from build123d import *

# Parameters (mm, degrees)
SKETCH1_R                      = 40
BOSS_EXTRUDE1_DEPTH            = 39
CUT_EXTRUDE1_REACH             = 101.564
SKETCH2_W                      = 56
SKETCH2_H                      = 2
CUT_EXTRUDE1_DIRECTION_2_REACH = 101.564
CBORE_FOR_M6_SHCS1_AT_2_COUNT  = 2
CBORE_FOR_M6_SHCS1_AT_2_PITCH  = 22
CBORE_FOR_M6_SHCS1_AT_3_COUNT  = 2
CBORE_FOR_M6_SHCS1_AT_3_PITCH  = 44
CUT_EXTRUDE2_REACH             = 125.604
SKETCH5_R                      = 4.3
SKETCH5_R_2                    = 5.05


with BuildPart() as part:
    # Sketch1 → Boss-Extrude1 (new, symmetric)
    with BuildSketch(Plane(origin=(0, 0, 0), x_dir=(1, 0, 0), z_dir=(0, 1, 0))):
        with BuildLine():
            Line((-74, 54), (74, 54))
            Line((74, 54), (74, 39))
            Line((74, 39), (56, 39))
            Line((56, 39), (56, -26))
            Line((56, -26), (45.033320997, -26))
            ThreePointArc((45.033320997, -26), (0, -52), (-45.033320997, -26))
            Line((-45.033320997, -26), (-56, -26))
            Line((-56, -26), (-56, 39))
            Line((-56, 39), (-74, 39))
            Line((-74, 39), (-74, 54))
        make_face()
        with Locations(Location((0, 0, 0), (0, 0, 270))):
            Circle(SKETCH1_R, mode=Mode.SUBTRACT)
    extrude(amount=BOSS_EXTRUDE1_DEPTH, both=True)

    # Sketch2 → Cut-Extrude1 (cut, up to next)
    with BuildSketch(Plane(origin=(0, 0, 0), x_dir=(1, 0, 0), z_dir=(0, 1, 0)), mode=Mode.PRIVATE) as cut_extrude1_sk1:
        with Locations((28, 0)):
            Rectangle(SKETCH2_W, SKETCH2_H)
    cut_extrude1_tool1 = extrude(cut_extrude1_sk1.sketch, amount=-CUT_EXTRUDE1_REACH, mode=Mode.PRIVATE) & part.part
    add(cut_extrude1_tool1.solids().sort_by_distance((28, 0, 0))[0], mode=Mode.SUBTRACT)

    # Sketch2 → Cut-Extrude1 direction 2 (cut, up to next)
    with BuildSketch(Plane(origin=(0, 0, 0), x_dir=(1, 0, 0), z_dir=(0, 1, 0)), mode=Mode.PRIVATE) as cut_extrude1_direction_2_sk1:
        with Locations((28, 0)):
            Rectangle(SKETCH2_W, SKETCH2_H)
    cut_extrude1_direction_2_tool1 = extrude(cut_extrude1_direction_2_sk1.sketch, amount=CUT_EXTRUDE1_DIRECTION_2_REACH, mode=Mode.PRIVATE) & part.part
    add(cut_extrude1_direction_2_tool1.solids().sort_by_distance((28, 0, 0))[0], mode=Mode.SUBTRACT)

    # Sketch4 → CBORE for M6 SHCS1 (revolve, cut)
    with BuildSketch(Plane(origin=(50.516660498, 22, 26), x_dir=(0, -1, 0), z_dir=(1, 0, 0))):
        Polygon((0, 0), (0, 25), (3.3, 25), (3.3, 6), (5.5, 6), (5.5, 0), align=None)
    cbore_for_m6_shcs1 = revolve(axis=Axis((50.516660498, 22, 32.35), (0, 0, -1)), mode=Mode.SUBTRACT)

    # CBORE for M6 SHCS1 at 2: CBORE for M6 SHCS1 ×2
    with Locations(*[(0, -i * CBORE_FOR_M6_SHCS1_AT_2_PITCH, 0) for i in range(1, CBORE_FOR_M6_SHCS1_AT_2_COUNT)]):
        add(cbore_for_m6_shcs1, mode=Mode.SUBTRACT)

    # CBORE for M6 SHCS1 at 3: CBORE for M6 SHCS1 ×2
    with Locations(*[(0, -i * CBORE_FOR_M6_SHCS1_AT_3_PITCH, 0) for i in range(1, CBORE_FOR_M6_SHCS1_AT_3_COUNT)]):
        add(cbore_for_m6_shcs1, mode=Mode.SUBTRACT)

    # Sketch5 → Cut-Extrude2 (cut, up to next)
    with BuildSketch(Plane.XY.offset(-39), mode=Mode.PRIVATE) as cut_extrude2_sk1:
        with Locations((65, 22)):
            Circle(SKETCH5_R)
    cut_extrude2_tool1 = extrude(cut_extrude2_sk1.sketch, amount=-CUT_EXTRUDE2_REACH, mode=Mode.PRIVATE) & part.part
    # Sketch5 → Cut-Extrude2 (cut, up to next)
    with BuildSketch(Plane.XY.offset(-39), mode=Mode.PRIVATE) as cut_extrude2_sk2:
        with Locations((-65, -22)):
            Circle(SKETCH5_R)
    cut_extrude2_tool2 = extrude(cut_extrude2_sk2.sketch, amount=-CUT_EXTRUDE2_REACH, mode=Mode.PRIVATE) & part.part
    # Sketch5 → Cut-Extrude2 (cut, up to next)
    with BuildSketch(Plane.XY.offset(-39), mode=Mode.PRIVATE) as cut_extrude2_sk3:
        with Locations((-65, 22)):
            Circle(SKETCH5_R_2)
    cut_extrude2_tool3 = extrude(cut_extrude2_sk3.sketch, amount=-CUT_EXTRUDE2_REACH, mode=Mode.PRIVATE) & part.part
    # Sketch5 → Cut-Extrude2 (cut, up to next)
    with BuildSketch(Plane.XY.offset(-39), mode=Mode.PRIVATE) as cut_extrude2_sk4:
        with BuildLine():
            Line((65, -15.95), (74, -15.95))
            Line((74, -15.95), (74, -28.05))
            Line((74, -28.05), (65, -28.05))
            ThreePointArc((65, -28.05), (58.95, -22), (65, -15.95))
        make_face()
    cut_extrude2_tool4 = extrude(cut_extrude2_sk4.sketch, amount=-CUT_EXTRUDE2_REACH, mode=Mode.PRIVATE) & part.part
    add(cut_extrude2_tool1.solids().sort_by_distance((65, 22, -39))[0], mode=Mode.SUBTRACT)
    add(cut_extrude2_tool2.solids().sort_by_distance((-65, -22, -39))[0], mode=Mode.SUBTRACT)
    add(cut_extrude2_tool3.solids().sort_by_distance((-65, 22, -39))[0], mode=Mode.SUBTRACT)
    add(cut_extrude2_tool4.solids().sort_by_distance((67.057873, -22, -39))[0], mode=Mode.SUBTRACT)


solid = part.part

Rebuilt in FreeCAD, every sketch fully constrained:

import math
import FreeCAD as App
import Part
import Sketcher

doc = App.newDocument("Part")
body = doc.addObject("PartDesign::Body", "Body")

# Sketch on XZ plane
sketch1 = body.newObject("Sketcher::SketchObject", "Sketch")
sketch1.AttachmentSupport = (doc.getObject("XZ_Plane"), [""])
sketch1.MapMode = "FlatFace"
sketch1.addGeometry(Part.LineSegment(App.Vector(74, -54, 0), App.Vector(-74, -54, 0)), False)
sketch1.addGeometry(Part.LineSegment(App.Vector(-74, -54, 0), App.Vector(-74, -39, 0)), False)
sketch1.addGeometry(Part.LineSegment(App.Vector(-74, -39, 0), App.Vector(-56, -39, 0)), False)
sketch1.addGeometry(Part.LineSegment(App.Vector(-56, -39, 0), App.Vector(-56, 26, 0)), False)
sketch1.addGeometry(Part.LineSegment(App.Vector(-56, 26, 0), App.Vector(-45.033321, 26, 0)), False)
sketch1.addGeometry(Part.ArcOfCircle(Part.Circle(App.Vector(0, 0, 0), App.Vector(0, 0, 1), 52), math.radians(30), math.radians(150)), False)
sketch1.addGeometry(Part.LineSegment(App.Vector(45.033321, 26, 0), App.Vector(56, 26, 0)), False)
sketch1.addGeometry(Part.LineSegment(App.Vector(56, 26, 0), App.Vector(56, -39, 0)), False)
sketch1.addGeometry(Part.LineSegment(App.Vector(56, -39, 0), App.Vector(74, -39, 0)), False)
sketch1.addGeometry(Part.LineSegment(App.Vector(74, -39, 0), App.Vector(74, -54, 0)), False)
sketch1.addGeometry(Part.Circle(App.Vector(0, 0, 0), App.Vector(0, 0, 1), 40), False)
sketch1.addConstraint(Sketcher.Constraint("Coincident", 0, 2, 1, 1))
sketch1.addConstraint(Sketcher.Constraint("Coincident", 1, 2, 2, 1))
sketch1.addConstraint(Sketcher.Constraint("Coincident", 2, 2, 3, 1))
sketch1.addConstraint(Sketcher.Constraint("Coincident", 3, 2, 4, 1))
sketch1.addConstraint(Sketcher.Constraint("Coincident", 4, 2, 5, 2))
sketch1.addConstraint(Sketcher.Constraint("Coincident", 5, 1, 6, 1))
sketch1.addConstraint(Sketcher.Constraint("Coincident", 6, 2, 7, 1))
sketch1.addConstraint(Sketcher.Constraint("Coincident", 7, 2, 8, 1))
sketch1.addConstraint(Sketcher.Constraint("Coincident", 8, 2, 9, 1))
sketch1.addConstraint(Sketcher.Constraint("Coincident", 9, 2, 0, 1))
sketch1.addConstraint(Sketcher.Constraint("Horizontal", 0))
sketch1.addConstraint(Sketcher.Constraint("Vertical", 1))
sketch1.addConstraint(Sketcher.Constraint("Horizontal", 2))
sketch1.addConstraint(Sketcher.Constraint("Vertical", 3))
sketch1.addConstraint(Sketcher.Constraint("Horizontal", 4))
sketch1.addConstraint(Sketcher.Constraint("Horizontal", 6))
sketch1.addConstraint(Sketcher.Constraint("Vertical", 7))
sketch1.addConstraint(Sketcher.Constraint("Horizontal", 8))
sketch1.addConstraint(Sketcher.Constraint("Vertical", 9))
sketch1.addConstraint(Sketcher.Constraint("Coincident", 5, 3, -1, 1))
sketch1.addConstraint(Sketcher.Constraint("Coincident", 10, 3, -1, 1))
sketch1.addConstraint(Sketcher.Constraint("Symmetric", 3, 2, 6, 2, -2))
sketch1.addConstraint(Sketcher.Constraint("Symmetric", 1, 2, 8, 2, -2))
sketch1.addConstraint(Sketcher.Constraint("Diameter", 10, 80.0))
sketch1.addConstraint(Sketcher.Constraint("Radius", 5, 52.0))
sketch1.addConstraint(Sketcher.Constraint("DistanceX", 0, 2, 0, 1, 148.0))
sketch1.addConstraint(Sketcher.Constraint("DistanceX", 2, 1, 2, 2, 18.0))
sketch1.addConstraint(Sketcher.Constraint("DistanceY", 1, 1, 1, 2, 15.0))
sketch1.addConstraint(Sketcher.Constraint("DistanceY", 3, 1, 3, 2, 65.0))
sketch1.addConstraint(Sketcher.Constraint("DistanceY", 0, 2, -1, 1, 54.0))
pad1 = body.newObject("PartDesign::Pad", "Pad")
pad1.Profile = sketch1
pad1.Length = 78
pad1.Midplane = True

# Sketch on XZ plane
sketch2 = body.newObject("Sketcher::SketchObject", "Sketch001")
sketch2.AttachmentSupport = (doc.getObject("XZ_Plane"), [""])
sketch2.MapMode = "FlatFace"
sketch2.addGeometry(Part.LineSegment(App.Vector(0, -1, 0), App.Vector(0, 1, 0)), False)
sketch2.addGeometry(Part.LineSegment(App.Vector(0, 1, 0), App.Vector(56, 1, 0)), False)
sketch2.addGeometry(Part.LineSegment(App.Vector(56, 1, 0), App.Vector(56, -1, 0)), False)
sketch2.addGeometry(Part.LineSegment(App.Vector(56, -1, 0), App.Vector(0, -1, 0)), False)
sketch2.addConstraint(Sketcher.Constraint("Coincident", 0, 2, 1, 1))
sketch2.addConstraint(Sketcher.Constraint("Coincident", 1, 2, 2, 1))
sketch2.addConstraint(Sketcher.Constraint("Coincident", 2, 2, 3, 1))
sketch2.addConstraint(Sketcher.Constraint("Coincident", 3, 2, 0, 1))
sketch2.addConstraint(Sketcher.Constraint("Vertical", 0))
sketch2.addConstraint(Sketcher.Constraint("Horizontal", 1))
sketch2.addConstraint(Sketcher.Constraint("Vertical", 2))
sketch2.addConstraint(Sketcher.Constraint("Horizontal", 3))
sketch2.addConstraint(Sketcher.Constraint("Symmetric", 0, 2, 3, 2, -1, 1))
sketch2.addConstraint(Sketcher.Constraint("DistanceX", 1, 1, 1, 2, 56.0))
sketch2.addConstraint(Sketcher.Constraint("DistanceY", 0, 1, 0, 2, 2.0))
pocket1 = body.newObject("PartDesign::Pocket", "Pocket")
pocket1.Profile = sketch2
pocket1.Length = 39
pocket1.Reversed = True

# Sketch on XZ plane
sketch3 = body.newObject("Sketcher::SketchObject", "Sketch002")
sketch3.AttachmentSupport = (doc.getObject("XZ_Plane"), [""])
sketch3.MapMode = "FlatFace"
sketch3.addGeometry(Part.LineSegment(App.Vector(0, -1, 0), App.Vector(0, 1, 0)), False)
sketch3.addGeometry(Part.LineSegment(App.Vector(0, 1, 0), App.Vector(56, 1, 0)), False)
sketch3.addGeometry(Part.LineSegment(App.Vector(56, 1, 0), App.Vector(56, -1, 0)), False)
sketch3.addGeometry(Part.LineSegment(App.Vector(56, -1, 0), App.Vector(0, -1, 0)), False)
sketch3.addConstraint(Sketcher.Constraint("Coincident", 0, 2, 1, 1))
sketch3.addConstraint(Sketcher.Constraint("Coincident", 1, 2, 2, 1))
sketch3.addConstraint(Sketcher.Constraint("Coincident", 2, 2, 3, 1))
sketch3.addConstraint(Sketcher.Constraint("Coincident", 3, 2, 0, 1))
sketch3.addConstraint(Sketcher.Constraint("Vertical", 0))
sketch3.addConstraint(Sketcher.Constraint("Horizontal", 1))
sketch3.addConstraint(Sketcher.Constraint("Vertical", 2))
sketch3.addConstraint(Sketcher.Constraint("Horizontal", 3))
sketch3.addConstraint(Sketcher.Constraint("Symmetric", 0, 2, 3, 2, -1, 1))
sketch3.addConstraint(Sketcher.Constraint("DistanceX", 1, 1, 1, 2, 56.0))
sketch3.addConstraint(Sketcher.Constraint("DistanceY", 0, 1, 0, 2, 2.0))
pocket2 = body.newObject("PartDesign::Pocket", "Pocket001")
pocket2.Profile = sketch3
pocket2.Length = 39

# Sketch on YZ plane
sketch4 = body.newObject("Sketcher::SketchObject", "Sketch003")
sketch4.AttachmentSupport = (doc.getObject("YZ_Plane"), [""])
sketch4.MapMode = "FlatFace"
sketch4.AttachmentOffset = App.Placement(App.Vector(0, 0, 50.51666), App.Rotation())
sketch4.addGeometry(Part.LineSegment(App.Vector(22, 1, 0), App.Vector(22, 26, 0)), False)
sketch4.addGeometry(Part.LineSegment(App.Vector(22, 26, 0), App.Vector(16.5, 26, 0)), False)
sketch4.addGeometry(Part.LineSegment(App.Vector(16.5, 26, 0), App.Vector(16.5, 20, 0)), False)
sketch4.addGeometry(Part.LineSegment(App.Vector(16.5, 20, 0), App.Vector(18.7, 20, 0)), False)
sketch4.addGeometry(Part.LineSegment(App.Vector(18.7, 20, 0), App.Vector(18.7, 1, 0)), False)
sketch4.addGeometry(Part.LineSegment(App.Vector(18.7, 1, 0), App.Vector(22, 1, 0)), False)
sketch4.addGeometry(Part.LineSegment(App.Vector(22, 26, 0), App.Vector(22, 1, 0)), True)  # axis
sketch4.addConstraint(Sketcher.Constraint("Coincident", 0, 2, 1, 1))
sketch4.addConstraint(Sketcher.Constraint("Coincident", 1, 2, 2, 1))
sketch4.addConstraint(Sketcher.Constraint("Coincident", 2, 2, 3, 1))
sketch4.addConstraint(Sketcher.Constraint("Coincident", 3, 2, 4, 1))
sketch4.addConstraint(Sketcher.Constraint("Coincident", 4, 2, 5, 1))
sketch4.addConstraint(Sketcher.Constraint("Coincident", 5, 2, 0, 1))
sketch4.addConstraint(Sketcher.Constraint("Vertical", 0))
sketch4.addConstraint(Sketcher.Constraint("Horizontal", 1))
sketch4.addConstraint(Sketcher.Constraint("Vertical", 2))
sketch4.addConstraint(Sketcher.Constraint("Horizontal", 3))
sketch4.addConstraint(Sketcher.Constraint("Vertical", 4))
sketch4.addConstraint(Sketcher.Constraint("Horizontal", 5))
sketch4.addConstraint(Sketcher.Constraint("Vertical", 6))
sketch4.addConstraint(Sketcher.Constraint("Coincident", 6, 1, 0, 2))
sketch4.addConstraint(Sketcher.Constraint("Horizontal", 4, 2, 6, 2))
sketch4.addConstraint(Sketcher.Constraint("DistanceY", 0, 1, 0, 2, 25.0))
sketch4.addConstraint(Sketcher.Constraint("DistanceY", 2, 2, 2, 1, 6.0))
sketch4.addConstraint(Sketcher.Constraint("DistanceX", 1, 2, 1, 1, 5.5))
sketch4.addConstraint(Sketcher.Constraint("DistanceX", 3, 1, 3, 2, 2.2))
sketch4.addConstraint(Sketcher.Constraint("DistanceX", -1, 1, 0, 2, 22.0))
sketch4.addConstraint(Sketcher.Constraint("DistanceY", -1, 1, 0, 2, 26.0))
groove = body.newObject("PartDesign::Groove", "Groove")
groove.Profile = sketch4
groove.ReferenceAxis = (sketch4, ["Axis0"])
groove.Angle = 360
doc.recompute()

linearpattern = body.newObject("PartDesign::LinearPattern", "LinearPattern")
linearpattern.Originals = [groove]
linearpattern.Direction = (doc.getObject("Y_Axis"), [""])
linearpattern.Mode = "offset"
linearpattern.Offset = 22
linearpattern.Occurrences = 2
linearpattern.Reversed = True
body.Tip = linearpattern
doc.recompute()

linearpattern2 = body.newObject("PartDesign::LinearPattern", "LinearPattern001")
linearpattern2.Originals = [groove]
linearpattern2.Direction = (doc.getObject("Y_Axis"), [""])
linearpattern2.Mode = "offset"
linearpattern2.Offset = 44
linearpattern2.Occurrences = 2
linearpattern2.Reversed = True
body.Tip = linearpattern2

# Sketch on XY plane
sketch5 = body.newObject("Sketcher::SketchObject", "Sketch004")
sketch5.AttachmentSupport = (doc.getObject("XY_Plane"), [""])
sketch5.MapMode = "FlatFace"
sketch5.AttachmentOffset = App.Placement(App.Vector(0, 0, -39), App.Rotation())
sketch5.addGeometry(Part.Circle(App.Vector(65, 22, 0), App.Vector(0, 0, 1), 4.3), False)
sketch5.addConstraint(Sketcher.Constraint("Diameter", 0, 8.6))
sketch5.addConstraint(Sketcher.Constraint("DistanceX", -1, 1, 0, 3, 65.0))
sketch5.addConstraint(Sketcher.Constraint("DistanceY", -1, 1, 0, 3, 22.0))
pocket3 = body.newObject("PartDesign::Pocket", "Pocket002")
pocket3.Profile = sketch5
pocket3.Type = "UpToFirst"

# Sketch on XY plane
sketch6 = body.newObject("Sketcher::SketchObject", "Sketch005")
sketch6.AttachmentSupport = (doc.getObject("XY_Plane"), [""])
sketch6.MapMode = "FlatFace"
sketch6.AttachmentOffset = App.Placement(App.Vector(0, 0, -39), App.Rotation())
sketch6.addGeometry(Part.Circle(App.Vector(-65, -22, 0), App.Vector(0, 0, 1), 4.3), False)
sketch6.addConstraint(Sketcher.Constraint("Diameter", 0, 8.6))
sketch6.addConstraint(Sketcher.Constraint("DistanceX", 0, 3, -1, 1, 65.0))
sketch6.addConstraint(Sketcher.Constraint("DistanceY", 0, 3, -1, 1, 22.0))
pocket4 = body.newObject("PartDesign::Pocket", "Pocket003")
pocket4.Profile = sketch6
pocket4.Type = "UpToFirst"

# Sketch on XY plane
sketch7 = body.newObject("Sketcher::SketchObject", "Sketch006")
sketch7.AttachmentSupport = (doc.getObject("XY_Plane"), [""])
sketch7.MapMode = "FlatFace"
sketch7.AttachmentOffset = App.Placement(App.Vector(0, 0, -39), App.Rotation())
sketch7.addGeometry(Part.Circle(App.Vector(-65, 22, 0), App.Vector(0, 0, 1), 5.05), False)
sketch7.addConstraint(Sketcher.Constraint("Diameter", 0, 10.1))
sketch7.addConstraint(Sketcher.Constraint("DistanceX", 0, 3, -1, 1, 65.0))
sketch7.addConstraint(Sketcher.Constraint("DistanceY", -1, 1, 0, 3, 22.0))
pocket5 = body.newObject("PartDesign::Pocket", "Pocket004")
pocket5.Profile = sketch7
pocket5.Type = "UpToFirst"

# Sketch on XY plane
sketch8 = body.newObject("Sketcher::SketchObject", "Sketch007")
sketch8.AttachmentSupport = (doc.getObject("XY_Plane"), [""])
sketch8.MapMode = "FlatFace"
sketch8.AttachmentOffset = App.Placement(App.Vector(0, 0, -39), App.Rotation())
sketch8.addGeometry(Part.LineSegment(App.Vector(74, -15.95, 0), App.Vector(65, -15.95, 0)), False)
sketch8.addGeometry(Part.ArcOfCircle(Part.Circle(App.Vector(65, -22, 0), App.Vector(0, 0, 1), 6.05), math.radians(90), math.radians(270)), False)
sketch8.addGeometry(Part.LineSegment(App.Vector(65, -28.05, 0), App.Vector(74, -28.05, 0)), False)
sketch8.addGeometry(Part.LineSegment(App.Vector(74, -28.05, 0), App.Vector(74, -15.95, 0)), False)
sketch8.addConstraint(Sketcher.Constraint("Tangent", 0, 2, 1, 1))
sketch8.addConstraint(Sketcher.Constraint("Tangent", 1, 2, 2, 1))
sketch8.addConstraint(Sketcher.Constraint("Coincident", 2, 2, 3, 1))
sketch8.addConstraint(Sketcher.Constraint("Coincident", 3, 2, 0, 1))
sketch8.addConstraint(Sketcher.Constraint("Horizontal", 0))
sketch8.addConstraint(Sketcher.Constraint("Horizontal", 2))
sketch8.addConstraint(Sketcher.Constraint("Vertical", 3))
sketch8.addConstraint(Sketcher.Constraint("DistanceX", 0, 2, 0, 1, 9.0))
sketch8.addConstraint(Sketcher.Constraint("Radius", 1, 6.05))
sketch8.addConstraint(Sketcher.Constraint("DistanceX", -1, 1, 1, 3, 65.0))
sketch8.addConstraint(Sketcher.Constraint("DistanceY", 1, 3, -1, 1, 22.0))
pocket6 = body.newObject("PartDesign::Pocket", "Pocket005")
pocket6.Profile = sketch8
pocket6.Type = "UpToFirst"

doc.recompute()
